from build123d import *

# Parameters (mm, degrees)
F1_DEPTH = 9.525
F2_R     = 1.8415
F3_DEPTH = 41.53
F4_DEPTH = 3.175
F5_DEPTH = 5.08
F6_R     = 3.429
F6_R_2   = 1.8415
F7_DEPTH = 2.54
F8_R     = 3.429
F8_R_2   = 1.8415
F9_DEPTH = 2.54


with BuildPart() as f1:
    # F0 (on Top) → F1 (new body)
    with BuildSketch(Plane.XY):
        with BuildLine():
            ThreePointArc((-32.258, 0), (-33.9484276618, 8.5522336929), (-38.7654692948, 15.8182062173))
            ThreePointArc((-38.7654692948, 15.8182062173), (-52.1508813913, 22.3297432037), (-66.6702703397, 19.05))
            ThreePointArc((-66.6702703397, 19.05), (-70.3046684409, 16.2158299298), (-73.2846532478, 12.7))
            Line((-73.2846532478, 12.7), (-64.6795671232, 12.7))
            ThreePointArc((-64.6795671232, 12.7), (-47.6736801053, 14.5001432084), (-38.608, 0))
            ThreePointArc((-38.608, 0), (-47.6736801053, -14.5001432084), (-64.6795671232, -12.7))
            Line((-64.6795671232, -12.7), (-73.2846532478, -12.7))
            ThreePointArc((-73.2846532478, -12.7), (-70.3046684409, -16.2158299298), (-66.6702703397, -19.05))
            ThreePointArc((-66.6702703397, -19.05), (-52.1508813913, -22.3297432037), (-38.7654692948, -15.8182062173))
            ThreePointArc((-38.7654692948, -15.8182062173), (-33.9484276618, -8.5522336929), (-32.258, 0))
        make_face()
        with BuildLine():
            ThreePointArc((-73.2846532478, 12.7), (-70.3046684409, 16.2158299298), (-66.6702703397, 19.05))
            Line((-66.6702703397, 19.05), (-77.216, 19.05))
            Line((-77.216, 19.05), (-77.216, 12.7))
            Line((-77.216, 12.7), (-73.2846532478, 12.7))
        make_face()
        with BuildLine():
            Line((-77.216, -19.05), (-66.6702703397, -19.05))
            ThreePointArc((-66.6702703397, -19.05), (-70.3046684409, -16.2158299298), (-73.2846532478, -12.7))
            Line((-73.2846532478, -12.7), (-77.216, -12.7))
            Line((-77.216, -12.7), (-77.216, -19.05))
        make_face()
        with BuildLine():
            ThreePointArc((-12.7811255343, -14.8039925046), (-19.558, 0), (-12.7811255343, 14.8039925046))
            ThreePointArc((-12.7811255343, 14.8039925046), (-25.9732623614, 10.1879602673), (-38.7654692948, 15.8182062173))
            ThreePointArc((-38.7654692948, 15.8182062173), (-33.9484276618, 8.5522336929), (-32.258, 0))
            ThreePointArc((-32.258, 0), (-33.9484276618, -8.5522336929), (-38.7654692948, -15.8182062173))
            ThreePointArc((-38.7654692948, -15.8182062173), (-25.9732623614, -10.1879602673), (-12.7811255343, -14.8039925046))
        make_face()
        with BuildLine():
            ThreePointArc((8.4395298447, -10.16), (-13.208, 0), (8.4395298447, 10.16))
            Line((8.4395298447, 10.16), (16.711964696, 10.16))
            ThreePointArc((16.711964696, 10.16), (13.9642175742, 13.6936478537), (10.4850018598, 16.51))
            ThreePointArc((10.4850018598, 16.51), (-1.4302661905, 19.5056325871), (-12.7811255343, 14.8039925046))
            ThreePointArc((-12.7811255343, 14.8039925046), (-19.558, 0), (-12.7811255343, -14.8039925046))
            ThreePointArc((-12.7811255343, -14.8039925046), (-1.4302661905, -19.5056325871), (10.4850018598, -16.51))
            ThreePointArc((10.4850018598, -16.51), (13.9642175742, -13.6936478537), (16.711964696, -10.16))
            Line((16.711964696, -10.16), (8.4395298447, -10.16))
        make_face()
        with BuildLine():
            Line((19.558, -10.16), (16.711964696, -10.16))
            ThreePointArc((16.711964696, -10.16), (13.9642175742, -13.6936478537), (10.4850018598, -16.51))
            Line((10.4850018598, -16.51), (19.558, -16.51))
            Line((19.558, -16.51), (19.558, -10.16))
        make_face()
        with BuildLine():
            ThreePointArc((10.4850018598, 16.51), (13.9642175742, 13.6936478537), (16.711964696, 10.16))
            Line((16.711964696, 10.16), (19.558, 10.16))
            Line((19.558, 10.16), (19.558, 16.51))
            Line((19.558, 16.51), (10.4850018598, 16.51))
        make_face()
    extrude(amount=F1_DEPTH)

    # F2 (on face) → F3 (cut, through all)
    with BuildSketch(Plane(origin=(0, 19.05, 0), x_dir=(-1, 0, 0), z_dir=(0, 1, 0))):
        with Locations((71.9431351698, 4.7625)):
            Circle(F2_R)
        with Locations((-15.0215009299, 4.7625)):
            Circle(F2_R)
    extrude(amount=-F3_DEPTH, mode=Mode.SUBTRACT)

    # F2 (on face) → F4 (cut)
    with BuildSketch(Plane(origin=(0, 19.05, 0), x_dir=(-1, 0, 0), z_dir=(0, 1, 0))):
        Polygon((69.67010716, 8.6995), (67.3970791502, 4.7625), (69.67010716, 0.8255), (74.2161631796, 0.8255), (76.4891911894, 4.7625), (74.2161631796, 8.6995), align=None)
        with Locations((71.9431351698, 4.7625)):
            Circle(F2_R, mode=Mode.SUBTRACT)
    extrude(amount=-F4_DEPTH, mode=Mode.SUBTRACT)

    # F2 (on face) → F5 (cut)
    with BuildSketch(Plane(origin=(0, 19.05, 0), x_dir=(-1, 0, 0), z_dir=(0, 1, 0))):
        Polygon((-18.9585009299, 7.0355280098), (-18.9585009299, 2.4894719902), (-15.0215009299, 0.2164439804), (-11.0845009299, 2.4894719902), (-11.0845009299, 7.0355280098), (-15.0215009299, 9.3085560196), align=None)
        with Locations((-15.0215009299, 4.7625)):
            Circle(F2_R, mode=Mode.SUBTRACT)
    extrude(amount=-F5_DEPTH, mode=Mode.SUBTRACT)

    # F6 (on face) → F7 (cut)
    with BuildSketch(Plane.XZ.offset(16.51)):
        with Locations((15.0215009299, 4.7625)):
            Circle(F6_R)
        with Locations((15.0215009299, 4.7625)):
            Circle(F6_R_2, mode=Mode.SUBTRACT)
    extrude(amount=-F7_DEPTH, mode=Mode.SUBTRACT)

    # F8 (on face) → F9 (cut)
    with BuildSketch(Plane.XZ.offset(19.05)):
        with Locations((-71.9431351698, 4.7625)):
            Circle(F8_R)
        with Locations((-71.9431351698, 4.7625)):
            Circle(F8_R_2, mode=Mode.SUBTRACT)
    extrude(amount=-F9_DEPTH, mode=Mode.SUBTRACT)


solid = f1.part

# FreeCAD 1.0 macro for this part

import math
import FreeCAD as App
import Part
import Sketcher
from FreeCAD import Vector
Q = App.Units.Quantity


def add_polygon(sketch, points):
    """Adds a closed chain of lines whose ends are joined by coincident constraints."""
    first, n = sketch.GeometryCount, len(points)
    for a, b in zip(points, points[1:] + points[:1]):
        sketch.addGeometry(Part.LineSegment(App.Vector(*a, 0), App.Vector(*b, 0)), False)
    for i in range(n):
        sketch.addConstraint(Sketcher.Constraint("Coincident", first + i, 2, first + (i + 1) % n, 1))

doc = App.newDocument("Part")
params = doc.addObject("Spreadsheet::Sheet", "Params")
for row, (alias, value) in enumerate([
    ("sketch1_radius", "0.75 in"),
    ("sketch1_radius2", "0.77 in"),
    ("sketch1_radius3", "0.52 in"),
    ("sketch1_radius4", "0.885 in"),
    ("sketch1_radius5", "0.635 in"),
    ("pad1_length", "0.375 in"),
    ("sketch2_diameter", "0.145 in"),
    ("sketch3_diameter", "0.145 in"),
    ("pocket2_length", "0.125 in"),
    ("sketch4_diameter", "0.145 in"),
    ("pocket3_length", "0.2 in"),
    ("sketch5_diameter", "0.27 in"),
    ("sketch5_diameter2", "0.145 in"),
    ("pocket4_length", "0.1 in"),
    ("sketch6_diameter", "0.27 in"),
    ("sketch6_diameter2", "0.145 in"),
    ("pocket5_length", "0.1 in"),
], start=1):
    params.set(f"A{row}", alias)
    params.set(f"B{row}", "=" + value)
    params.setAlias(f"B{row}", alias)

body = doc.addObject("PartDesign::Body", "Body")

sketch1 = body.newObject("Sketcher::SketchObject", "Sketch")
sketch1.AttachmentSupport = (doc.getObject("XY_Plane"), [""])
sketch1.MapMode = "FlatFace"
sketch1.addGeometry(Part.ArcOfCircle(Part.Circle(Vector(-55, 0, 0), Vector(0, 0, 1), 22), math.radians(45), math.radians(122)), False)
sketch1.addGeometry(Part.LineSegment(Vector(-67, 19, 0), Vector(-77, 19, 0)), False)
sketch1.addGeometry(Part.LineSegment(Vector(-77, 19, 0), Vector(-77, 13, 0)), False)
sketch1.addGeometry(Part.LineSegment(Vector(-77, 13, 0), Vector(-65, 13, 0)), False)
sketch1.addGeometry(Part.ArcOfCircle(Part.Circle(Vector(-55, 0, 0), Vector(0, 0, 1), 16), math.radians(0), math.radians(128)), False)
sketch1.addGeometry(Part.ArcOfCircle(Part.Circle(Vector(-55, 0, 0), Vector(0, 0, 1), 16), math.radians(-128), math.radians(0)), False)
sketch1.addGeometry(Part.LineSegment(Vector(-65, -13, 0), Vector(-77, -13, 0)), False)
sketch1.addGeometry(Part.LineSegment(Vector(-77, -13, 0), Vector(-77, -19, 0)), False)
sketch1.addGeometry(Part.LineSegment(Vector(-77, -19, 0), Vector(-67, -19, 0)), False)
sketch1.addGeometry(Part.ArcOfCircle(Part.Circle(Vector(-55, 0, 0), Vector(0, 0, 1), 22), math.radians(-122), math.radians(-45)), False)
sketch1.addGeometry(Part.ArcOfCircle(Part.Circle(Vector(-25, -29, 0), Vector(0, 0, 1), 19), math.radians(49), math.radians(135)), False)
sketch1.addGeometry(Part.ArcOfCircle(Part.Circle(Vector(0, 0, 0), Vector(0, 0, 1), 20), math.radians(-131), math.radians(-58)), False)
sketch1.addGeometry(Part.LineSegment(Vector(10, -17, 0), Vector(20, -17, 0)), False)
sketch1.addGeometry(Part.LineSegment(Vector(20, -17, 0), Vector(20, -10, 0)), False)
sketch1.addGeometry(Part.LineSegment(Vector(20, -10, 0), Vector(8, -10, 0)), False)
sketch1.addGeometry(Part.ArcOfCircle(Part.Circle(Vector(0, 0, 0), Vector(0, 0, 1), 13), math.radians(50), math.radians(310)), False)
sketch1.addGeometry(Part.LineSegment(Vector(8, 10, 0), Vector(20, 10, 0)), False)
sketch1.addGeometry(Part.LineSegment(Vector(20, 10, 0), Vector(20, 17, 0)), False)
sketch1.addGeometry(Part.LineSegment(Vector(20, 17, 0), Vector(10, 17, 0)), False)
sketch1.addGeometry(Part.ArcOfCircle(Part.Circle(Vector(0, 0, 0), Vector(0, 0, 1), 20), math.radians(58), math.radians(131)), False)
sketch1.addGeometry(Part.ArcOfCircle(Part.Circle(Vector(-25, 29, 0), Vector(0, 0, 1), 19), math.radians(-135), math.radians(-49)), False)
sketch1.addConstraint(Sketcher.Constraint("Coincident", 0, 2, 1, 1))
sketch1.addConstraint(Sketcher.Constraint("Coincident", 1, 2, 2, 1))
sketch1.addConstraint(Sketcher.Constraint("Coincident", 2, 2, 3, 1))
sketch1.addConstraint(Sketcher.Constraint("Coincident", 3, 2, 4, 2))
sketch1.addConstraint(Sketcher.Constraint("Tangent", 4, 1, 5, 2))
sketch1.addConstraint(Sketcher.Constraint("Coincident", 5, 1, 6, 1))
sketch1.addConstraint(Sketcher.Constraint("Coincident", 6, 2, 7, 1))
sketch1.addConstraint(Sketcher.Constraint("Coincident", 7, 2, 8, 1))
sketch1.addConstraint(Sketcher.Constraint("Coincident", 8, 2, 9, 1))
sketch1.addConstraint(Sketcher.Constraint("Tangent", 9, 2, 10, 2))
sketch1.addConstraint(Sketcher.Constraint("Tangent", 10, 1, 11, 1))
sketch1.addConstraint(Sketcher.Constraint("Coincident", 11, 2, 12, 1))
sketch1.addConstraint(Sketcher.Constraint("Coincident", 12, 2, 13, 1))
sketch1.addConstraint(Sketcher.Constraint("Coincident", 13, 2, 14, 1))
sketch1.addConstraint(Sketcher.Constraint("Coincident", 14, 2, 15, 2))
sketch1.addConstraint(Sketcher.Constraint("Coincident", 15, 1, 16, 1))
sketch1.addConstraint(Sketcher.Constraint("Coincident", 16, 2, 17, 1))
sketch1.addConstraint(Sketcher.Constraint("Coincident", 17, 2, 18, 1))
sketch1.addConstraint(Sketcher.Constraint("Coincident", 18, 2, 19, 1))
sketch1.addConstraint(Sketcher.Constraint("Tangent", 19, 2, 20, 2))
sketch1.addConstraint(Sketcher.Constraint("Tangent", 20, 1, 0, 1))
sketch1.addConstraint(Sketcher.Constraint("Horizontal", 1))
sketch1.addConstraint(Sketcher.Constraint("Vertical", 2))
sketch1.addConstraint(Sketcher.Constraint("Horizontal", 3))
sketch1.addConstraint(Sketcher.Constraint("Horizontal", 6))
sketch1.addConstraint(Sketcher.Constraint("Vertical", 7))
sketch1.addConstraint(Sketcher.Constraint("Horizontal", 8))
sketch1.addConstraint(Sketcher.Constraint("Horizontal", 12))
sketch1.addConstraint(Sketcher.Constraint("Vertical", 13))
sketch1.addConstraint(Sketcher.Constraint("Horizontal", 14))
sketch1.addConstraint(Sketcher.Constraint("Horizontal", 16))
sketch1.addConstraint(Sketcher.Constraint("Vertical", 17))
sketch1.addConstraint(Sketcher.Constraint("Horizontal", 18))
sketch1.addConstraint(Sketcher.Constraint("Coincident", 11, 3, -1, 1))
sketch1.addConstraint(Sketcher.Constraint("Coincident", 15, 3, -1, 1))
sketch1.addConstraint(Sketcher.Constraint("Coincident", 19, 3, -1, 1))
sketch1.addConstraint(Sketcher.Constraint("Coincident", 4, 3, 0, 3))
sketch1.addConstraint(Sketcher.Constraint("Coincident", 9, 3, 0, 3))
sketch1.addConstraint(Sketcher.Constraint("Equal", 4, 5))
sketch1.addConstraint(Sketcher.Constraint("Equal", 0, 9))
sketch1.addConstraint(Sketcher.Constraint("Equal", 11, 19))
sketch1.addConstraint(Sketcher.Constraint("Equal", 10, 20))
sketch1.addConstraint(Sketcher.Constraint("Symmetric", 3, 2, 5, 1, -1))
sketch1.addConstraint(Sketcher.Constraint("Symmetric", 1, 2, 7, 2, -1))
sketch1.addConstraint(Sketcher.Constraint("Symmetric", 13, 2, 16, 2, -1))
sketch1.addConstraint(Sketcher.Constraint("PointOnObject", 4, 1, -1))
sketch1.addConstraint(Sketcher.Constraint("Vertical", 11, 2, 18, 2))
sketch1.addConstraint(Sketcher.Constraint("Equal", 7, 13))
sketch1.addConstraint(Sketcher.Constraint("Radius", 10, Q("0.75 in")))
sketch1.addConstraint(Sketcher.Constraint("Radius", 11, Q("0.77 in")))
sketch1.addConstraint(Sketcher.Constraint("Radius", 15, Q("0.52 in")))
sketch1.addConstraint(Sketcher.Constraint("Radius", 0, Q("0.885 in")))
sketch1.addConstraint(Sketcher.Constraint("Radius", 4, Q("0.635 in")))
sketch1.addConstraint(Sketcher.Constraint("DistanceY", 5, 1, 3, 2, Q("1 in")))
sketch1.addConstraint(Sketcher.Constraint("DistanceY", 2, 2, 2, 1, Q("0.25 in")))
sketch1.addConstraint(Sketcher.Constraint("DistanceY", 13, 2, -1, 1, Q("0.4 in")))
sketch1.addConstraint(Sketcher.Constraint("DistanceX", 1, 2, -1, 1, Q("3.04 in")))
sketch1.addConstraint(Sketcher.Constraint("DistanceX", 4, 1, -1, 1, Q("1.52 in")))
sketch1.addConstraint(Sketcher.Constraint("DistanceX", -1, 1, 12, 2, Q("0.77 in")))
sketch1.setExpression("Constraints[48]", "Params.sketch1_radius")
sketch1.setExpression("Constraints[49]", "Params.sketch1_radius2")
sketch1.setExpression("Constraints[50]", "Params.sketch1_radius3")
sketch1.setExpression("Constraints[51]", "Params.sketch1_radius4")
sketch1.setExpression("Constraints[52]", "Params.sketch1_radius5")
pad1 = body.newObject("PartDesign::Pad", "Pad")
pad1.Profile = sketch1
pad1.setExpression("Length", "Params.pad1_length")

sketch2 = body.newObject("Sketcher::SketchObject", "Sketch001")
sketch2.AttachmentSupport = (doc.getObject("XZ_Plane"), [""])
sketch2.MapMode = "FlatFace"
sketch2.AttachmentOffset = App.Placement(Vector(0, 0, -0.75 * 25.4), App.Rotation())
sketch2.addGeometry(Part.Circle(Vector(-71.9, 4.8, 0), Vector(0, 0, 1), 1.8), False)
sketch2.addGeometry(Part.Circle(Vector(15, 4.8, 0), Vector(0, 0, 1), 1.8), False)
sketch2.addConstraint(Sketcher.Constraint("Equal", 0, 1))
sketch2.addConstraint(Sketcher.Constraint("Horizontal", 0, 3, 1, 3))
sketch2.addConstraint(Sketcher.Constraint("Diameter", 0, Q("0.145 in")))
sketch2.addConstraint(Sketcher.Constraint("DistanceY", -1, 1, 0, 3, Q("0.1875 in")))
sketch2.addConstraint(Sketcher.Constraint("DistanceX", -1, 1, 1, 3, 15.021501))
sketch2.addConstraint(Sketcher.Constraint("DistanceX", 0, 3, -1, 1, 71.943135))
sketch2.setExpression("Constraints[2]", "Params.sketch2_diameter")
pocket1 = body.newObject("PartDesign::Pocket", "Pocket")
pocket1.Profile = sketch2
pocket1.Type = "ThroughAll"
pocket1.Reversed = True

sketch3 = body.newObject("Sketcher::SketchObject", "Sketch002")
sketch3.AttachmentSupport = (doc.getObject("XZ_Plane"), [""])
sketch3.MapMode = "FlatFace"
sketch3.AttachmentOffset = App.Placement(Vector(0, 0, -0.75 * 25.4), App.Rotation())
add_polygon(sketch3, [(-69.7, 8.7), (-67.4, 4.8), (-69.7, 0.8), (-74.2, 0.8), (-76.5, 4.8), (-74.2, 8.7)])
sketch3.addGeometry(Part.Circle(Vector(-71.9, 4.8, 0), Vector(0, 0, 1), 1.8), False)
sketch3.addConstraint(Sketcher.Constraint("Horizontal", 2))
sketch3.addConstraint(Sketcher.Constraint("Horizontal", 5))
sketch3.addConstraint(Sketcher.Constraint("Parallel", 0, 3))
sketch3.addConstraint(Sketcher.Constraint("Parallel", 1, 4))
sketch3.addConstraint(Sketcher.Constraint("Horizontal", 6, 3, 0, 2))
sketch3.addConstraint(Sketcher.Constraint("Horizontal", 0, 2, 3, 2))
sketch3.addConstraint(Sketcher.Constraint("Vertical", 2, 2, 4, 2))
sketch3.addConstraint(Sketcher.Constraint("Vertical", 1, 2, 5, 2))
sketch3.addConstraint(Sketcher.Constraint("Diameter", 6, Q("0.145 in")))
sketch3.addConstraint(Sketcher.Constraint("Angle", 0, Q("-60 deg")))
sketch3.addConstraint(Sketcher.Constraint("DistanceY", 2, 2, 4, 2, Q("0.31 in")))
sketch3.addConstraint(Sketcher.Constraint("DistanceY", -1, 1, 6, 3, Q("0.1875 in")))
sketch3.addConstraint(Sketcher.Constraint("DistanceX", 2, 2, 2, 1, 4.546056))
sketch3.addConstraint(Sketcher.Constraint("DistanceX", 0, 2, -1, 1, 67.397079))
sketch3.addConstraint(Sketcher.Constraint("DistanceX", 6, 3, 1, 2, 2.273028))
sketch3.setExpression("Constraints[14]", "Params.sketch3_diameter")
pocket2 = body.newObject("PartDesign::Pocket", "Pocket001")
pocket2.Profile = sketch3
pocket2.setExpression("Length", "Params.pocket2_length")
pocket2.Reversed = True

sketch4 = body.newObject("Sketcher::SketchObject", "Sketch003")
sketch4.AttachmentSupport = (doc.getObject("XZ_Plane"), [""])
sketch4.MapMode = "FlatFace"
sketch4.AttachmentOffset = App.Placement(Vector(0, 0, -0.75 * 25.4), App.Rotation())
add_polygon(sketch4, [(19, 7), (19, 2.5), (15, 0.2), (11.1, 2.5), (11.1, 7), (15, 9.3)])
sketch4.addGeometry(Part.Circle(Vector(15, 4.8, 0), Vector(0, 0, 1), 1.8), False)
sketch4.addConstraint(Sketcher.Constraint("Vertical", 0))
sketch4.addConstraint(Sketcher.Constraint("Vertical", 3))
sketch4.addConstraint(Sketcher.Constraint("Parallel", 1, 4))
sketch4.addConstraint(Sketcher.Constraint("Parallel", 2, 5))
sketch4.addConstraint(Sketcher.Constraint("Horizontal", 0, 2, 2, 2))
sketch4.addConstraint(Sketcher.Constraint("Horizontal", 3, 2, 5, 2))
sketch4.addConstraint(Sketcher.Constraint("Vertical", 6, 3, 1, 2))
sketch4.addConstraint(Sketcher.Constraint("Vertical", 1, 2, 4, 2))
sketch4.addConstraint(Sketcher.Constraint("Diameter", 6, Q("0.145 in")))
sketch4.addConstraint(Sketcher.Constraint("Angle", 1, Q("-150 deg")))
sketch4.addConstraint(Sketcher.Constraint("DistanceX", 2, 2, 0, 2, Q("0.31 in")))
sketch4.addConstraint(Sketcher.Constraint("DistanceY", -1, 1, 6, 3, Q("0.1875 in")))
sketch4.addConstraint(Sketcher.Constraint("DistanceX", -1, 1, 6, 3, 15.021501))
sketch4.addConstraint(Sketcher.Constraint("DistanceY", 0, 2, 0, 1, 4.546056))
sketch4.addConstraint(Sketcher.Constraint("DistanceY", -1, 1, 0, 2, 2.489472))
sketch4.setExpression("Constraints[14]", "Params.sketch4_diameter")
pocket3 = body.newObject("PartDesign::Pocket", "Pocket002")
pocket3.Profile = sketch4
pocket3.setExpression("Length", "Params.pocket3_length")
pocket3.Reversed = True

sketch5 = body.newObject("Sketcher::SketchObject", "Sketch004")
sketch5.AttachmentSupport = (doc.getObject("XZ_Plane"), [""])
sketch5.MapMode = "FlatFace"
sketch5.AttachmentOffset = App.Placement(Vector(0, 0, 0.65 * 25.4), App.Rotation())
sketch5.addGeometry(Part.Circle(Vector(15, 4.8, 0), Vector(0, 0, 1), 3.4), False)
sketch5.addGeometry(Part.Circle(Vector(15, 4.8, 0), Vector(0, 0, 1), 1.8), False)
sketch5.addConstraint(Sketcher.Constraint("Coincident", 1, 3, 0, 3))
sketch5.addConstraint(Sketcher.Constraint("Diameter", 0, Q("0.27 in")))
sketch5.addConstraint(Sketcher.Constraint("Diameter", 1, Q("0.145 in")))
sketch5.addConstraint(Sketcher.Constraint("DistanceY", -1, 1, 0, 3, Q("0.1875 in")))
sketch5.addConstraint(Sketcher.Constraint("DistanceX", -1, 1, 0, 3, 15.021501))
sketch5.setExpression("Constraints[1]", "Params.sketch5_diameter")
sketch5.setExpression("Constraints[2]", "Params.sketch5_diameter2")
pocket4 = body.newObject("PartDesign::Pocket", "Pocket003")
pocket4.Profile = sketch5
pocket4.setExpression("Length", "Params.pocket4_length")

sketch6 = body.newObject("Sketcher::SketchObject", "Sketch005")
sketch6.AttachmentSupport = (doc.getObject("XZ_Plane"), [""])
sketch6.MapMode = "FlatFace"
sketch6.AttachmentOffset = App.Placement(Vector(0, 0, 0.75 * 25.4), App.Rotation())
sketch6.addGeometry(Part.Circle(Vector(-71.9, 4.8, 0), Vector(0, 0, 1), 3.4), False)
sketch6.addGeometry(Part.Circle(Vector(-71.9, 4.8, 0), Vector(0, 0, 1), 1.8), False)
sketch6.addConstraint(Sketcher.Constraint("Coincident", 1, 3, 0, 3))
sketch6.addConstraint(Sketcher.Constraint("Diameter", 0, Q("0.27 in")))
sketch6.addConstraint(Sketcher.Constraint("Diameter", 1, Q("0.145 in")))
sketch6.addConstraint(Sketcher.Constraint("DistanceY", -1, 1, 0, 3, Q("0.1875 in")))
sketch6.addConstraint(Sketcher.Constraint("DistanceX", 0, 3, -1, 1, 71.943135))
sketch6.setExpression("Constraints[1]", "Params.sketch6_diameter")
sketch6.setExpression("Constraints[2]", "Params.sketch6_diameter2")
pocket5 = body.newObject("PartDesign::Pocket", "Pocket004")
pocket5.Profile = sketch6
pocket5.setExpression("Length", "Params.pocket5_length")

doc.recompute()
